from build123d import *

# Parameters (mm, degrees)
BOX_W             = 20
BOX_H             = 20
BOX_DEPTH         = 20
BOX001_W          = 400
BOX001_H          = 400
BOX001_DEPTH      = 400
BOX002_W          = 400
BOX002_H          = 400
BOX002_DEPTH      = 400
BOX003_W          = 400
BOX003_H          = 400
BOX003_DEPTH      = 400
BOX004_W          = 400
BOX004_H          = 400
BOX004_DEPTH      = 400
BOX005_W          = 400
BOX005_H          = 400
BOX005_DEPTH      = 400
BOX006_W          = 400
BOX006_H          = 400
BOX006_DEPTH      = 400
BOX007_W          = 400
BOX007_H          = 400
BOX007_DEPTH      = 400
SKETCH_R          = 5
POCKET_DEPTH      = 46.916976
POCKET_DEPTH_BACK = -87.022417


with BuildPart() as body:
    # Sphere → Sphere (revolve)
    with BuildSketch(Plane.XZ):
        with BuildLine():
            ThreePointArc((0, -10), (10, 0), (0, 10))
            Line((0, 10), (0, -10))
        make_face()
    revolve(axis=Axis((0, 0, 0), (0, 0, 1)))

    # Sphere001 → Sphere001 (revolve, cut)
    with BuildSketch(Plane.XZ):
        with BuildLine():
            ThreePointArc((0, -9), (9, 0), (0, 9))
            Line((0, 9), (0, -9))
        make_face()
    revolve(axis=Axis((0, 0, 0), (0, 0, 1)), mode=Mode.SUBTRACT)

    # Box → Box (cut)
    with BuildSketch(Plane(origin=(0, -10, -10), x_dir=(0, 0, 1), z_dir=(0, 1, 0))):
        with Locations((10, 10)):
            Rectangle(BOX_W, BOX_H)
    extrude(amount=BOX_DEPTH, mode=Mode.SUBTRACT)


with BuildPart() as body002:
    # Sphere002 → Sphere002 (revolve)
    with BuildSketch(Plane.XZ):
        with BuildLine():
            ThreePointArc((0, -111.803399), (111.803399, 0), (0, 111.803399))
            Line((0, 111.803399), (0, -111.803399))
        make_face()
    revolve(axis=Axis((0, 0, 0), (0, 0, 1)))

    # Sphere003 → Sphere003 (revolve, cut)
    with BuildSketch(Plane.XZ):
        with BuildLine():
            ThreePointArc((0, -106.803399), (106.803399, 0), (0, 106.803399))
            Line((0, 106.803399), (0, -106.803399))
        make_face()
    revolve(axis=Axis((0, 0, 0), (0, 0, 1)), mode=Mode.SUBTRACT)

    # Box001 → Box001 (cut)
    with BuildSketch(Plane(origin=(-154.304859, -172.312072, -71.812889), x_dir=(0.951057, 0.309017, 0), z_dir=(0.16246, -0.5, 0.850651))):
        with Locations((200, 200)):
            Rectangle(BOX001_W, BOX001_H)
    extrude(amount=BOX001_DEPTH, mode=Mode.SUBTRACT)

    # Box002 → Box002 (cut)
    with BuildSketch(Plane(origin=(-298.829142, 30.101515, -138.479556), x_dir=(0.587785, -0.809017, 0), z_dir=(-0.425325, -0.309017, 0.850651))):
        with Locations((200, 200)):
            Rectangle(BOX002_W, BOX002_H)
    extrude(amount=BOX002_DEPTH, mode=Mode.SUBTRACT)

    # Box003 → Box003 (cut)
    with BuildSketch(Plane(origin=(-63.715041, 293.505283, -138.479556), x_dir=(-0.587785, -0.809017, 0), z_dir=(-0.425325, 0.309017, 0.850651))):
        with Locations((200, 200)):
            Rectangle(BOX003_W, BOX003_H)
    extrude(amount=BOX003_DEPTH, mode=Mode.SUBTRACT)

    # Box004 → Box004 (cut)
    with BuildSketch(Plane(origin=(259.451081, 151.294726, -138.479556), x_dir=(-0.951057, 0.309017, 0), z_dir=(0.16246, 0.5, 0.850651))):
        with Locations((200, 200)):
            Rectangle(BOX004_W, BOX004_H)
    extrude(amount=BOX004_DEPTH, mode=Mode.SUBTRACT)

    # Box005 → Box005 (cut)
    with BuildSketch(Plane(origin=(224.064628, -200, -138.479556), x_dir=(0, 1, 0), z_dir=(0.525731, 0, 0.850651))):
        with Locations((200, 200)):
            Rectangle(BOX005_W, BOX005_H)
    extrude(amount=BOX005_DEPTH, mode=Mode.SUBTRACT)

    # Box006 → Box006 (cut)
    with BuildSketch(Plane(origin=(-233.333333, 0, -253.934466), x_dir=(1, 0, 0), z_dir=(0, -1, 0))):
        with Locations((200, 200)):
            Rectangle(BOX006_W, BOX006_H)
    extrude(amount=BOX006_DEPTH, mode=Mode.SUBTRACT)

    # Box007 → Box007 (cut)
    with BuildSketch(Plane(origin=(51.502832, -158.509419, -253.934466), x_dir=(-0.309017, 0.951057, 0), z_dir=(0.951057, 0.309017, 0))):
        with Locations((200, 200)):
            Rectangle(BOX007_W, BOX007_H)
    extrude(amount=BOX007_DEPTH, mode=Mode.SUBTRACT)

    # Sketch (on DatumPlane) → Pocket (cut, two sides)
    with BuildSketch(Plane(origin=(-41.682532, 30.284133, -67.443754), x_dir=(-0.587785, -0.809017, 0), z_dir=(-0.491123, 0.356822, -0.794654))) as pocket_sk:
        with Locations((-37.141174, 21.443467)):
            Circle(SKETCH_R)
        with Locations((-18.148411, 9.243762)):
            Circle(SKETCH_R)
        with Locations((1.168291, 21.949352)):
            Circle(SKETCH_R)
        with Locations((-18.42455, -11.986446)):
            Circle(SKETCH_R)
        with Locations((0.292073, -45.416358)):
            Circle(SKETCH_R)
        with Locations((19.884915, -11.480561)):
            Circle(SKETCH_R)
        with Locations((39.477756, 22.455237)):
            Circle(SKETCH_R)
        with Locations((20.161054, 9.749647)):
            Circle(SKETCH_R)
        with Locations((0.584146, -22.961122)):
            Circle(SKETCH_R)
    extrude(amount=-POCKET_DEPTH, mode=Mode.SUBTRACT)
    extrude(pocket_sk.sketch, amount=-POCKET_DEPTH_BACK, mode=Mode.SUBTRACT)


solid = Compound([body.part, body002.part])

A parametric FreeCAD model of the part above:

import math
import FreeCAD as App
import Part
import Sketcher
Q = App.Units.Quantity

doc = App.newDocument("Part")
params = doc.addObject("Spreadsheet::Sheet", "Params")
for row, (alias, value) in enumerate([
    ("sketch1_radius", "10 mm"),
    ("revolution_angle", "360 deg"),
    ("sketch2_radius", "9 mm"),
    ("groove_angle", "360 deg"),
    ("sketch3_width", "20 mm"),
    ("pocket1_length", "20 mm"),
    ("revolution2_angle", "360 deg"),
    ("groove2_angle", "360 deg"),
    ("sketch6_width", "400 mm"),
    ("pocket2_length", "400 mm"),
    ("sketch7_width", "400 mm"),
    ("pocket3_length", "400 mm"),
    ("sketch8_width", "400 mm"),
    ("pocket4_length", "400 mm"),
    ("sketch9_width", "400 mm"),
    ("pocket5_length", "400 mm"),
    ("sketch10_width", "400 mm"),
    ("pocket6_length", "400 mm"),
    ("sketch11_width", "400 mm"),
    ("pocket7_length", "400 mm"),
    ("sketch12_width", "400 mm"),
    ("pocket8_length", "400 mm"),
    ("sketch13_diameter", "10 mm"),
], start=1):
    params.set(f"A{row}", alias)
    params.set(f"B{row}", "=" + value)
    params.setAlias(f"B{row}", alias)

body = doc.addObject("PartDesign::Body", "Body")

# Sketch on XZ plane
sketch1 = body.newObject("Sketcher::SketchObject", "Sketch")
sketch1.AttachmentSupport = (doc.getObject("XZ_Plane"), [""])
sketch1.MapMode = "FlatFace"
sketch1.addGeometry(Part.ArcOfCircle(Part.Circle(App.Vector(0, 0, 0), App.Vector(0, 0, 1), 10), math.radians(-90), math.radians(90)), False)
sketch1.addGeometry(Part.LineSegment(App.Vector(0, 10, 0), App.Vector(0, -10, 0)), False)
sketch1.addConstraint(Sketcher.Constraint("Coincident", 0, 1, 1, 2))
sketch1.addConstraint(Sketcher.Constraint("Coincident", 1, 1, 0, 2))
sketch1.addConstraint(Sketcher.Constraint("Vertical", 1))
sketch1.addConstraint(Sketcher.Constraint("Coincident", 0, 3, -1, 1))
sketch1.addConstraint(Sketcher.Constraint("PointOnObject", 0, 1, -2))
sketch1.addConstraint(Sketcher.Constraint("Radius", 0, Q("10 mm")))
sketch1.setExpression("Constraints[5]", "Params.sketch1_radius")
revolution = body.newObject("PartDesign::Revolution", "Revolution")
revolution.Profile = sketch1
revolution.ReferenceAxis = (sketch1, ["V_Axis"])
revolution.setExpression("Angle", "Params.revolution_angle")

# Sketch on XZ plane
sketch2 = body.newObject("Sketcher::SketchObject", "Sketch001")
sketch2.AttachmentSupport = (doc.getObject("XZ_Plane"), [""])
sketch2.MapMode = "FlatFace"
sketch2.addGeometry(Part.ArcOfCircle(Part.Circle(App.Vector(0, 0, 0), App.Vector(0, 0, 1), 9), math.radians(-90), math.radians(90)), False)
sketch2.addGeometry(Part.LineSegment(App.Vector(0, 9, 0), App.Vector(0, -9, 0)), False)
sketch2.addConstraint(Sketcher.Constraint("Coincident", 0, 1, 1, 2))
sketch2.addConstraint(Sketcher.Constraint("Coincident", 1, 1, 0, 2))
sketch2.addConstraint(Sketcher.Constraint("Vertical", 1))
sketch2.addConstraint(Sketcher.Constraint("Coincident", 0, 3, -1, 1))
sketch2.addConstraint(Sketcher.Constraint("PointOnObject", 0, 1, -2))
sketch2.addConstraint(Sketcher.Constraint("Radius", 0, Q("9 mm")))
sketch2.setExpression("Constraints[5]", "Params.sketch2_radius")
groove = body.newObject("PartDesign::Groove", "Groove")
groove.Profile = sketch2
groove.ReferenceAxis = (sketch2, ["V_Axis"])
groove.setExpression("Angle", "Params.groove_angle")

# Sketch on XZ plane
sketch3 = body.newObject("Sketcher::SketchObject", "Sketch002")
sketch3.AttachmentSupport = (doc.getObject("XZ_Plane"), [""])
sketch3.MapMode = "FlatFace"
sketch3.AttachmentOffset = App.Placement(App.Vector(0, 0, 10), App.Rotation())
sketch3.addGeometry(Part.LineSegment(App.Vector(20, -10, 0), App.Vector(0, -10, 0)), False)
sketch3.addGeometry(Part.LineSegment(App.Vector(0, -10, 0), App.Vector(0, 10, 0)), False)
sketch3.addGeometry(Part.LineSegment(App.Vector(0, 10, 0), App.Vector(20, 10, 0)), False)
sketch3.addGeometry(Part.LineSegment(App.Vector(20, 10, 0), App.Vector(20, -10, 0)), False)
sketch3.addConstraint(Sketcher.Constraint("Coincident", 0, 2, 1, 1))
sketch3.addConstraint(Sketcher.Constraint("Coincident", 1, 2, 2, 1))
sketch3.addConstraint(Sketcher.Constraint("Coincident", 2, 2, 3, 1))
sketch3.addConstraint(Sketcher.Constraint("Coincident", 3, 2, 0, 1))
sketch3.addConstraint(Sketcher.Constraint("Horizontal", 0))
sketch3.addConstraint(Sketcher.Constraint("Vertical", 1))
sketch3.addConstraint(Sketcher.Constraint("Horizontal", 2))
sketch3.addConstraint(Sketcher.Constraint("Vertical", 3))
sketch3.addConstraint(Sketcher.Constraint("Symmetric", 0, 2, 1, 2, -1, 1))
sketch3.addConstraint(Sketcher.Constraint("Equal", 2, 1))
sketch3.addConstraint(Sketcher.Constraint("DistanceX", 0, 2, 0, 1, Q("20 mm")))
sketch3.setExpression("Constraints[10]", "Params.sketch3_width")
pocket1 = body.newObject("PartDesign::Pocket", "Pocket")
pocket1.Profile = sketch3
pocket1.setExpression("Length", "Params.pocket1_length")
body2 = doc.addObject("PartDesign::Body", "Body001")

# Sketch on XZ plane
sketch4 = body2.newObject("Sketcher::SketchObject", "Sketch003")
sketch4.AttachmentSupport = (doc.getObject("XZ_Plane001"), [""])
sketch4.MapMode = "FlatFace"
sketch4.addGeometry(Part.ArcOfCircle(Part.Circle(App.Vector(0, 0, 0), App.Vector(0, 0, 1), 112), math.radians(-90), math.radians(90)), False)
sketch4.addGeometry(Part.LineSegment(App.Vector(0, 112, 0), App.Vector(0, -112, 0)), False)
sketch4.addConstraint(Sketcher.Constraint("Coincident", 0, 1, 1, 2))
sketch4.addConstraint(Sketcher.Constraint("Coincident", 1, 1, 0, 2))
sketch4.addConstraint(Sketcher.Constraint("Vertical", 1))
sketch4.addConstraint(Sketcher.Constraint("Coincident", 0, 3, -1, 1))
sketch4.addConstraint(Sketcher.Constraint("PointOnObject", 0, 1, -2))
sketch4.addConstraint(Sketcher.Constraint("Radius", 0, Q("111.803399 mm")))
revolution2 = body2.newObject("PartDesign::Revolution", "Revolution001")
revolution2.Profile = sketch4
revolution2.ReferenceAxis = (sketch4, ["V_Axis"])
revolution2.setExpression("Angle", "Params.revolution2_angle")

# Sketch on XZ plane
sketch5 = body2.newObject("Sketcher::SketchObject", "Sketch004")
sketch5.AttachmentSupport = (doc.getObject("XZ_Plane001"), [""])
sketch5.MapMode = "FlatFace"
sketch5.addGeometry(Part.ArcOfCircle(Part.Circle(App.Vector(0, 0, 0), App.Vector(0, 0, 1), 107), math.radians(-90), math.radians(90)), False)
sketch5.addGeometry(Part.LineSegment(App.Vector(0, 107, 0), App.Vector(0, -107, 0)), False)
sketch5.addConstraint(Sketcher.Constraint("Coincident", 0, 1, 1, 2))
sketch5.addConstraint(Sketcher.Constraint("Coincident", 1, 1, 0, 2))
sketch5.addConstraint(Sketcher.Constraint("Vertical", 1))
sketch5.addConstraint(Sketcher.Constraint("Coincident", 0, 3, -1, 1))
sketch5.addConstraint(Sketcher.Constraint("PointOnObject", 0, 1, -2))
sketch5.addConstraint(Sketcher.Constraint("Radius", 0, Q("106.803399 mm")))
groove2 = body2.newObject("PartDesign::Groove", "Groove001")
groove2.Profile = sketch5
groove2.ReferenceAxis = (sketch5, ["V_Axis"])
groove2.setExpression("Angle", "Params.groove2_angle")

# Sketch on an angled plane
sketch6 = body2.newObject("Sketcher::SketchObject", "Sketch005")
sketch6.Placement = App.Placement(App.Vector(-154.304859, -172.312072, -71.812889), App.Rotation(App.Vector(0.951056525, 0.309016967, -0.000000187), App.Vector(-0.262865449, 0.809017062, 0.52573106), App.Vector(0.16245997, -0.499999906, 0.85065084), "ZXY"))
sketch6.addGeometry(Part.LineSegment(App.Vector(0, 400, 0), App.Vector(0, 0, 0)), False)
sketch6.addGeometry(Part.LineSegment(App.Vector(0, 0, 0), App.Vector(400, 0, 0)), False)
sketch6.addGeometry(Part.LineSegment(App.Vector(400, 0, 0), App.Vector(400, 400, 0)), False)
sketch6.addGeometry(Part.LineSegment(App.Vector(400, 400, 0), App.Vector(0, 400, 0)), False)
sketch6.addConstraint(Sketcher.Constraint("Coincident", 0, 2, 1, 1))
sketch6.addConstraint(Sketcher.Constraint("Coincident", 1, 2, 2, 1))
sketch6.addConstraint(Sketcher.Constraint("Coincident", 2, 2, 3, 1))
sketch6.addConstraint(Sketcher.Constraint("Coincident", 3, 2, 0, 1))
sketch6.addConstraint(Sketcher.Constraint("Vertical", 0))
sketch6.addConstraint(Sketcher.Constraint("Horizontal", 1))
sketch6.addConstraint(Sketcher.Constraint("Vertical", 2))
sketch6.addConstraint(Sketcher.Constraint("Horizontal", 3))
sketch6.addConstraint(Sketcher.Constraint("Coincident", 0, 2, -1, 1))
sketch6.addConstraint(Sketcher.Constraint("Equal", 3, 0))
sketch6.addConstraint(Sketcher.Constraint("DistanceX", 1, 1, 1, 2, Q("400 mm")))
sketch6.setExpression("Constraints[10]", "Params.sketch6_width")
pocket2 = body2.newObject("PartDesign::Pocket", "Pocket001")
pocket2.Profile = sketch6
pocket2.setExpression("Length", "Params.pocket2_length")
pocket2.Reversed = True

# Sketch on an angled plane
sketch7 = body2.newObject("Sketcher::SketchObject", "Sketch006")
sketch7.Placement = App.Placement(App.Vector(-298.829142, 30.101515, -138.479556), App.Rotation(App.Vector(0.587785234, -0.809017008, -0.000000299), App.Vector(0.688191224, 0.499999973, 0.525730792), App.Vector(-0.425325003, -0.309017002, 0.850651006), "ZXY"))
sketch7.addGeometry(Part.LineSegment(App.Vector(0, 400, 0), App.Vector(0, 0, 0)), False)
sketch7.addGeometry(Part.LineSegment(App.Vector(0, 0, 0), App.Vector(400, 0, 0)), False)
sketch7.addGeometry(Part.LineSegment(App.Vector(400, 0, 0), App.Vector(400, 400, 0)), False)
sketch7.addGeometry(Part.LineSegment(App.Vector(400, 400, 0), App.Vector(0, 400, 0)), False)
sketch7.addConstraint(Sketcher.Constraint("Coincident", 0, 2, 1, 1))
sketch7.addConstraint(Sketcher.Constraint("Coincident", 1, 2, 2, 1))
sketch7.addConstraint(Sketcher.Constraint("Coincident", 2, 2, 3, 1))
sketch7.addConstraint(Sketcher.Constraint("Coincident", 3, 2, 0, 1))
sketch7.addConstraint(Sketcher.Constraint("Vertical", 0))
sketch7.addConstraint(Sketcher.Constraint("Horizontal", 1))
sketch7.addConstraint(Sketcher.Constraint("Vertical", 2))
sketch7.addConstraint(Sketcher.Constraint("Horizontal", 3))
sketch7.addConstraint(Sketcher.Constraint("Coincident", 0, 2, -1, 1))
sketch7.addConstraint(Sketcher.Constraint("Equal", 3, 0))
sketch7.addConstraint(Sketcher.Constraint("DistanceX", 1, 1, 1, 2, Q("400 mm")))
sketch7.setExpression("Constraints[10]", "Params.sketch7_width")
pocket3 = body2.newObject("PartDesign::Pocket", "Pocket002")
pocket3.Profile = sketch7
pocket3.setExpression("Length", "Params.pocket3_length")
pocket3.Reversed = True

# Sketch on an angled plane
sketch8 = body2.newObject("Sketcher::SketchObject", "Sketch007")
sketch8.Placement = App.Placement(App.Vector(-63.715041, 293.505283, -138.479556), App.Rotation(App.Vector(-0.587785234, -0.809017008, 0.000000299), App.Vector(0.688191224, -0.499999973, 0.525730792), App.Vector(-0.425325003, 0.309017002, 0.850651006), "ZXY"))
sketch8.addGeometry(Part.LineSegment(App.Vector(0, 400, 0), App.Vector(0, 0, 0)), False)
sketch8.addGeometry(Part.LineSegment(App.Vector(0, 0, 0), App.Vector(400, 0, 0)), False)
sketch8.addGeometry(Part.LineSegment(App.Vector(400, 0, 0), App.Vector(400, 400, 0)), False)
sketch8.addGeometry(Part.LineSegment(App.Vector(400, 400, 0), App.Vector(0, 400, 0)), False)
sketch8.addConstraint(Sketcher.Constraint("Coincident", 0, 2, 1, 1))
sketch8.addConstraint(Sketcher.Constraint("Coincident", 1, 2, 2, 1))
sketch8.addConstraint(Sketcher.Constraint("Coincident", 2, 2, 3, 1))
sketch8.addConstraint(Sketcher.Constraint("Coincident", 3, 2, 0, 1))
sketch8.addConstraint(Sketcher.Constraint("Vertical", 0))
sketch8.addConstraint(Sketcher.Constraint("Horizontal", 1))
sketch8.addConstraint(Sketcher.Constraint("Vertical", 2))
sketch8.addConstraint(Sketcher.Constraint("Horizontal", 3))
sketch8.addConstraint(Sketcher.Constraint("Coincident", 0, 2, -1, 1))
sketch8.addConstraint(Sketcher.Constraint("Equal", 3, 0))
sketch8.addConstraint(Sketcher.Constraint("DistanceX", 1, 1, 1, 2, Q("400 mm")))
sketch8.setExpression("Constraints[10]", "Params.sketch8_width")
pocket4 = body2.newObject("PartDesign::Pocket", "Pocket003")
pocket4.Profile = sketch8
pocket4.setExpression("Length", "Params.pocket4_length")
pocket4.Reversed = True

# Sketch on an angled plane
sketch9 = body2.newObject("Sketcher::SketchObject", "Sketch008")
sketch9.Placement = App.Placement(App.Vector(259.451081, 151.294726, -138.479556), App.Rotation(App.Vector(-0.951056525, 0.309016967, 0.000000187), App.Vector(-0.262865449, -0.809017062, 0.52573106), App.Vector(0.16245997, 0.499999906, 0.85065084), "ZXY"))
sketch9.addGeometry(Part.LineSegment(App.Vector(0, 400, 0), App.Vector(0, 0, 0)), False)
sketch9.addGeometry(Part.LineSegment(App.Vector(0, 0, 0), App.Vector(400, 0, 0)), False)
sketch9.addGeometry(Part.LineSegment(App.Vector(400, 0, 0), App.Vector(400, 400, 0)), False)
sketch9.addGeometry(Part.LineSegment(App.Vector(400, 400, 0), App.Vector(0, 400, 0)), False)
sketch9.addConstraint(Sketcher.Constraint("Coincident", 0, 2, 1, 1))
sketch9.addConstraint(Sketcher.Constraint("Coincident", 1, 2, 2, 1))
sketch9.addConstraint(Sketcher.Constraint("Coincident", 2, 2, 3, 1))
sketch9.addConstraint(Sketcher.Constraint("Coincident", 3, 2, 0, 1))
sketch9.addConstraint(Sketcher.Constraint("Vertical", 0))
sketch9.addConstraint(Sketcher.Constraint("Horizontal", 1))
sketch9.addConstraint(Sketcher.Constraint("Vertical", 2))
sketch9.addConstraint(Sketcher.Constraint("Horizontal", 3))
sketch9.addConstraint(Sketcher.Constraint("Coincident", 0, 2, -1, 1))
sketch9.addConstraint(Sketcher.Constraint("Equal", 3, 0))
sketch9.addConstraint(Sketcher.Constraint("DistanceX", 1, 1, 1, 2, Q("400 mm")))
sketch9.setExpression("Constraints[10]", "Params.sketch9_width")
pocket5 = body2.newObject("PartDesign::Pocket", "Pocket004")
pocket5.Profile = sketch9
pocket5.setExpression("Length", "Params.pocket5_length")
pocket5.Reversed = True

# Sketch on an angled plane
sketch10 = body2.newObject("Sketcher::SketchObject", "Sketch009")
sketch10.Placement = App.Placement(App.Vector(224.064628, -200, -138.479556), App.Rotation(App.Vector(0, 1, 0), App.Vector(-0.850650911, 0, 0.525730945), App.Vector(0.525730945, 0, 0.850650911), "ZXY"))
sketch10.addGeometry(Part.LineSegment(App.Vector(0, 400, 0), App.Vector(0, 0, 0)), False)
sketch10.addGeometry(Part.LineSegment(App.Vector(0, 0, 0), App.Vector(400, 0, 0)), False)
sketch10.addGeometry(Part.LineSegment(App.Vector(400, 0, 0), App.Vector(400, 400, 0)), False)
sketch10.addGeometry(Part.LineSegment(App.Vector(400, 400, 0), App.Vector(0, 400, 0)), False)
sketch10.addConstraint(Sketcher.Constraint("Coincident", 0, 2, 1, 1))
sketch10.addConstraint(Sketcher.Constraint("Coincident", 1, 2, 2, 1))
sketch10.addConstraint(Sketcher.Constraint("Coincident", 2, 2, 3, 1))
sketch10.addConstraint(Sketcher.Constraint("Coincident", 3, 2, 0, 1))
sketch10.addConstraint(Sketcher.Constraint("Vertical", 0))
sketch10.addConstraint(Sketcher.Constraint("Horizontal", 1))
sketch10.addConstraint(Sketcher.Constraint("Vertical", 2))
sketch10.addConstraint(Sketcher.Constraint("Horizontal", 3))
sketch10.addConstraint(Sketcher.Constraint("Coincident", 0, 2, -1, 1))
sketch10.addConstraint(Sketcher.Constraint("Equal", 3, 0))
sketch10.addConstraint(Sketcher.Constraint("DistanceX", 1, 1, 1, 2, Q("400 mm")))
sketch10.setExpression("Constraints[10]", "Params.sketch10_width")
pocket6 = body2.newObject("PartDesign::Pocket", "Pocket005")
pocket6.Profile = sketch10
pocket6.setExpression("Length", "Params.pocket6_length")
pocket6.Reversed = True

# Sketch on XZ plane
sketch11 = body2.newObject("Sketcher::SketchObject", "Sketch010")
sketch11.AttachmentSupport = (doc.getObject("XZ_Plane001"), [""])
sketch11.MapMode = "FlatFace"
sketch11.addGeometry(Part.LineSegment(App.Vector(-233, 146, 0), App.Vector(-233, -254, 0)), False)
sketch11.addGeometry(Part.LineSegment(App.Vector(-233, -254, 0), App.Vector(167, -254, 0)), False)
sketch11.addGeometry(Part.LineSegment(App.Vector(167, -254, 0), App.Vector(167, 146, 0)), False)
sketch11.addGeometry(Part.LineSegment(App.Vector(167, 146, 0), App.Vector(-233, 146, 0)), False)
sketch11.addConstraint(Sketcher.Constraint("Coincident", 0, 2, 1, 1))
sketch11.addConstraint(Sketcher.Constraint("Coincident", 1, 2, 2, 1))
sketch11.addConstraint(Sketcher.Constraint("Coincident", 2, 2, 3, 1))
sketch11.addConstraint(Sketcher.Constraint("Coincident", 3, 2, 0, 1))
sketch11.addConstraint(Sketcher.Constraint("Vertical", 0))
sketch11.addConstraint(Sketcher.Constraint("Horizontal", 1))
sketch11.addConstraint(Sketcher.Constraint("Vertical", 2))
sketch11.addConstraint(Sketcher.Constraint("Horizontal", 3))
sketch11.addConstraint(Sketcher.Constraint("Equal", 3, 0))
sketch11.addConstraint(Sketcher.Constraint("DistanceX", 1, 1, 1, 2, Q("400 mm")))
sketch11.addConstraint(Sketcher.Constraint("DistanceX", 0, 2, -1, 1, Q("233.333333 mm")))
sketch11.addConstraint(Sketcher.Constraint("DistanceY", 0, 2, -1, 1, Q("253.934466 mm")))
sketch11.setExpression("Constraints[9]", "Params.sketch11_width")
pocket7 = body2.newObject("PartDesign::Pocket", "Pocket006")
pocket7.Profile = sketch11
pocket7.setExpression("Length", "Params.pocket7_length")
pocket7.Reversed = True

# Sketch on an angled plane
sketch12 = body2.newObject("Sketcher::SketchObject", "Sketch011")
sketch12.Placement = App.Placement(App.Vector(51.502832, -158.509419, -253.934466), App.Rotation(App.Vector(-0.309016857, 0.951056561, 0), App.Vector(0, 0, 1), App.Vector(0.951056561, 0.309016857, 0), "ZXY"))
sketch12.addGeometry(Part.LineSegment(App.Vector(0, 400, 0), App.Vector(0, 0, 0)), False)
sketch12.addGeometry(Part.LineSegment(App.Vector(0, 0, 0), App.Vector(400, 0, 0)), False)
sketch12.addGeometry(Part.LineSegment(App.Vector(400, 0, 0), App.Vector(400, 400, 0)), False)
sketch12.addGeometry(Part.LineSegment(App.Vector(400, 400, 0), App.Vector(0, 400, 0)), False)
sketch12.addConstraint(Sketcher.Constraint("Coincident", 0, 2, 1, 1))
sketch12.addConstraint(Sketcher.Constraint("Coincident", 1, 2, 2, 1))
sketch12.addConstraint(Sketcher.Constraint("Coincident", 2, 2, 3, 1))
sketch12.addConstraint(Sketcher.Constraint("Coincident", 3, 2, 0, 1))
sketch12.addConstraint(Sketcher.Constraint("Vertical", 0))
sketch12.addConstraint(Sketcher.Constraint("Horizontal", 1))
sketch12.addConstraint(Sketcher.Constraint("Vertical", 2))
sketch12.addConstraint(Sketcher.Constraint("Horizontal", 3))
sketch12.addConstraint(Sketcher.Constraint("Coincident", 0, 2, -1, 1))
sketch12.addConstraint(Sketcher.Constraint("Equal", 3, 0))
sketch12.addConstraint(Sketcher.Constraint("DistanceX", 1, 1, 1, 2, Q("400 mm")))
sketch12.setExpression("Constraints[10]", "Params.sketch12_width")
pocket8 = body2.newObject("PartDesign::Pocket", "Pocket007")
pocket8.Profile = sketch12
pocket8.setExpression("Length", "Params.pocket8_length")
pocket8.Reversed = True

# Sketch on an angled plane
sketch13 = body2.newObject("Sketcher::SketchObject", "Sketch012")
sketch13.Placement = App.Placement(App.Vector(-41.682532, 30.284133, -67.443754), App.Rotation(App.Vector(-0.587785247, -0.809016998, -0.000000263), App.Vector(-0.642889098, 0.467086067, 0.607061951), App.Vector(-0.491123314, 0.356822228, -0.794654508), "ZXY"))
sketch13.addGeometry(Part.Circle(App.Vector(-37, 21, 0), App.Vector(0, 0, 1), 5), False)
sketch13.addGeometry(Part.Circle(App.Vector(-18, 9, 0), App.Vector(0, 0, 1), 5), False)
sketch13.addGeometry(Part.Circle(App.Vector(1, 22, 0), App.Vector(0, 0, 1), 5), False)
sketch13.addGeometry(Part.Circle(App.Vector(-18, -12, 0), App.Vector(0, 0, 1), 5), False)
sketch13.addGeometry(Part.Circle(App.Vector(0, -45, 0), App.Vector(0, 0, 1), 5), False)
sketch13.addGeometry(Part.Circle(App.Vector(20, -11, 0), App.Vector(0, 0, 1), 5), False)
sketch13.addGeometry(Part.Circle(App.Vector(39, 22, 0), App.Vector(0, 0, 1), 5), False)
sketch13.addGeometry(Part.Circle(App.Vector(20, 10, 0), App.Vector(0, 0, 1), 5), False)
sketch13.addGeometry(Part.Circle(App.Vector(1, -23, 0), App.Vector(0, 0, 1), 5), False)
sketch13.addConstraint(Sketcher.Constraint("Equal", 0, 1))
sketch13.addConstraint(Sketcher.Constraint("Equal", 1, 2))
sketch13.addConstraint(Sketcher.Constraint("Equal", 2, 3))
sketch13.addConstraint(Sketcher.Constraint("Equal", 3, 4))
sketch13.addConstraint(Sketcher.Constraint("Equal", 4, 5))
sketch13.addConstraint(Sketcher.Constraint("Equal", 5, 6))
sketch13.addConstraint(Sketcher.Constraint("Equal", 6, 7))
sketch13.addConstraint(Sketcher.Constraint("Equal", 7, 8))
sketch13.addConstraint(Sketcher.Constraint("Diameter", 0, Q("10 mm")))
sketch13.addConstraint(Sketcher.Constraint("DistanceX", 1, 3, 2, 3, Q("19.316702 mm")))
sketch13.addConstraint(Sketcher.Constraint("DistanceX", 7, 3, 6, 3, Q("19.316702 mm")))
sketch13.addConstraint(Sketcher.Constraint("DistanceX", 1, 3, -1, 1, Q("18.148411 mm")))
sketch13.addConstraint(Sketcher.Constraint("DistanceY", -1, 1, 1, 3, Q("9.243762 mm")))
sketch13.addConstraint(Sketcher.Constraint("DistanceY", -1, 1, 2, 3, Q("21.949352 mm")))
sketch13.addConstraint(Sketcher.Constraint("DistanceX", 3, 3, -1, 1, Q("18.42455 mm")))
sketch13.addConstraint(Sketcher.Constraint("DistanceY", 5, 3, -1, 1, Q("11.480561 mm")))
sketch13.addConstraint(Sketcher.Constraint("DistanceY", 8, 3, -1, 1, Q("22.961122 mm")))
sketch13.addConstraint(Sketcher.Constraint("DistanceY", 4, 3, 3, 3, Q("33.429912 mm")))
sketch13.addConstraint(Sketcher.Constraint("DistanceY", 4, 3, 1, 3, Q("54.66012 mm")))
sketch13.addConstraint(Sketcher.Constraint("DistanceX", 4, 3, 5, 3, Q("19.592842 mm")))
sketch13.addConstraint(Sketcher.Constraint("DistanceX", 0, 3, 5, 3, Q("57.026089 mm")))
sketch13.addConstraint(Sketcher.Constraint("DistanceX", 5, 3, 6, 3, Q("19.592841 mm")))
sketch13.addConstraint(Sketcher.Constraint("DistanceY", 0, 3, 6, 3, Q("1.01177 mm")))
sketch13.addConstraint(Sketcher.Constraint("DistanceY", 7, 3, 6, 3, Q("12.70559 mm")))
sketch13.addConstraint(Sketcher.Constraint("DistanceX", 8, 3, 5, 3, Q("19.300769 mm")))
sketch13.addConstraint(Sketcher.Constraint("DistanceY", 8, 3, 7, 3, Q("32.710769 mm")))
sketch13.addConstraint(Sketcher.Constraint("DistanceX", 0, 3, -1, 1, Q("37.141174 mm")))
sketch13.setExpression("Constraints[8]", "Params.sketch13_diameter")
pocket9 = body2.newObject("PartDesign::Pocket", "Pocket008")
pocket9.Profile = sketch13
pocket9.Type = "ThroughAll"
pocket9.Midplane = True

doc.recompute()
